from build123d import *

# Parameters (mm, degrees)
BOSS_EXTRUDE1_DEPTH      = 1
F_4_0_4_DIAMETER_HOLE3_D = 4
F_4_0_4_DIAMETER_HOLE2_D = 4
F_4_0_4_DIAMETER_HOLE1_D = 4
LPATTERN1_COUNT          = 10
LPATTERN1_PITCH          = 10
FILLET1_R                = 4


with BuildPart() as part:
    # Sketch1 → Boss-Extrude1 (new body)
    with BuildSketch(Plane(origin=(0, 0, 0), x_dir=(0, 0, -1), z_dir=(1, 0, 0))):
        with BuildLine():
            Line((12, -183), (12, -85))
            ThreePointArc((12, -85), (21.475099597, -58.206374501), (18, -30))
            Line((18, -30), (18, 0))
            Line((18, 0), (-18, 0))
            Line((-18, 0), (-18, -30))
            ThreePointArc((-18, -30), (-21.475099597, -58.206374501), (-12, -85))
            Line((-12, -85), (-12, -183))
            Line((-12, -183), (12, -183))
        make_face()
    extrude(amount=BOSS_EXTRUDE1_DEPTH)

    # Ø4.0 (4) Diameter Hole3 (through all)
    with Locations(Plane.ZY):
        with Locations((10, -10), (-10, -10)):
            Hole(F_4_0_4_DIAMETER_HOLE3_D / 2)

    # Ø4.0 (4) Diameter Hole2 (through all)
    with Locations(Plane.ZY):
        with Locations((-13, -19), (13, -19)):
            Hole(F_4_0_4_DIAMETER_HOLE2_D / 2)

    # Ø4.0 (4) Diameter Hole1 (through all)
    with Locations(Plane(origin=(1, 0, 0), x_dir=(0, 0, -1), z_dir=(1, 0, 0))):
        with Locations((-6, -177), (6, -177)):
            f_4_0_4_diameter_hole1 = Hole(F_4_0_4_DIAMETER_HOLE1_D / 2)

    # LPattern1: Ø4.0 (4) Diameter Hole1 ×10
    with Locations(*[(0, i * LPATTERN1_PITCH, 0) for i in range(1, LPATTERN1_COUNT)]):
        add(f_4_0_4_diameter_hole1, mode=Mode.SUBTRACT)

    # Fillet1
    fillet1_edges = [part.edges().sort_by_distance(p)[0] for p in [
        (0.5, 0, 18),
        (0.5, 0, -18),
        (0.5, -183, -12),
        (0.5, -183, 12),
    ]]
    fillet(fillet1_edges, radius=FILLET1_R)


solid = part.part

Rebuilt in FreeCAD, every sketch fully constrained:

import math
import FreeCAD as App
import Part
import Sketcher
from FreeCAD import Vector
Q = App.Units.Quantity


def edges_at(feature, points):
    """Names of the edges that pass closest to the given points."""
    edges = feature.Shape.Edges
    near = lambda p: min(range(len(edges)), key=lambda i: edges[i].distToShape(Part.Vertex(*p))[0])
    return sorted({f"Edge{near(p) + 1}" for p in points})

doc = App.newDocument("Part")
body = doc.addObject("PartDesign::Body", "Body")

# Sketch on YZ plane
sketch1 = body.newObject("Sketcher::SketchObject", "Sketch")
sketch1.AttachmentSupport = (doc.getObject("YZ_Plane"), [""])
sketch1.MapMode = "FlatFace"
sketch1.addGeometry(Part.LineSegment(Vector(-183, -12, 0), Vector(-85, -12, 0)), False)
sketch1.addGeometry(Part.ArcOfCircle(Part.Circle(Vector(-51.482629, 40.159235, 0), Vector(0, 0, 1), 62), math.radians(-122.724681), math.radians(-69.726977)), False)
sketch1.addGeometry(Part.LineSegment(Vector(-30, -18, 0), Vector(0, -18, 0)), False)
sketch1.addGeometry(Part.LineSegment(Vector(0, -18, 0), Vector(0, 18, 0)), False)
sketch1.addGeometry(Part.LineSegment(Vector(0, 18, 0), Vector(-30, 18, 0)), False)
sketch1.addGeometry(Part.ArcOfCircle(Part.Circle(Vector(-51.482629, -40.159235, 0), Vector(0, 0, 1), 62), math.radians(69.726977), math.radians(122.724681)), False)
sketch1.addGeometry(Part.LineSegment(Vector(-85, 12, 0), Vector(-183, 12, 0)), False)
sketch1.addGeometry(Part.LineSegment(Vector(-183, 12, 0), Vector(-183, -12, 0)), False)
sketch1.addConstraint(Sketcher.Constraint("Coincident", 0, 2, 1, 1))
sketch1.addConstraint(Sketcher.Constraint("Coincident", 1, 2, 2, 1))
sketch1.addConstraint(Sketcher.Constraint("Coincident", 2, 2, 3, 1))
sketch1.addConstraint(Sketcher.Constraint("Coincident", 3, 2, 4, 1))
sketch1.addConstraint(Sketcher.Constraint("Coincident", 4, 2, 5, 1))
sketch1.addConstraint(Sketcher.Constraint("Coincident", 5, 2, 6, 1))
sketch1.addConstraint(Sketcher.Constraint("Coincident", 6, 2, 7, 1))
sketch1.addConstraint(Sketcher.Constraint("Coincident", 7, 2, 0, 1))
sketch1.addConstraint(Sketcher.Constraint("Horizontal", 0))
sketch1.addConstraint(Sketcher.Constraint("Horizontal", 2))
sketch1.addConstraint(Sketcher.Constraint("Vertical", 3))
sketch1.addConstraint(Sketcher.Constraint("Horizontal", 4))
sketch1.addConstraint(Sketcher.Constraint("Horizontal", 6))
sketch1.addConstraint(Sketcher.Constraint("Vertical", 7))
sketch1.addConstraint(Sketcher.Constraint("Equal", 1, 5))
sketch1.addConstraint(Sketcher.Constraint("Symmetric", 2, 2, 3, 2, -1, 1))
sketch1.addConstraint(Sketcher.Constraint("Symmetric", 1, 3, 5, 3, -1))
sketch1.addConstraint(Sketcher.Constraint("Vertical", 0, 2, 5, 2))
sketch1.addConstraint(Sketcher.Constraint("Radius", 1, Q("62 mm")))
sketch1.addConstraint(Sketcher.Constraint("DistanceX", 0, 1, 0, 2, Q("98 mm")))
sketch1.addConstraint(Sketcher.Constraint("DistanceX", 2, 1, 2, 2, Q("30 mm")))
sketch1.addConstraint(Sketcher.Constraint("DistanceY", 3, 1, 3, 2, Q("36 mm")))
sketch1.addConstraint(Sketcher.Constraint("DistanceY", 7, 2, 7, 1, Q("24 mm")))
sketch1.addConstraint(Sketcher.Constraint("DistanceX", 0, 2, -1, 1, Q("85 mm")))
pad1 = body.newObject("PartDesign::Pad", "Pad")
pad1.Profile = sketch1
pad1.Length = 1

# Sketch on YZ plane
sketch2 = body.newObject("Sketcher::SketchObject", "Sketch001")
sketch2.AttachmentSupport = (doc.getObject("YZ_Plane"), [""])
sketch2.MapMode = "FlatFace"
sketch2.addGeometry(Part.Circle(Vector(-10, 10, 0), Vector(0, 0, 1), 2), False)
sketch2.addGeometry(Part.Circle(Vector(-10, -10, 0), Vector(0, 0, 1), 2), False)
sketch2.addConstraint(Sketcher.Constraint("Equal", 0, 1))
sketch2.addConstraint(Sketcher.Constraint("Symmetric", 0, 3, 1, 3, -1))
sketch2.addConstraint(Sketcher.Constraint("Diameter", 0, Q("4 mm")))
sketch2.addConstraint(Sketcher.Constraint("DistanceX", 0, 3, -1, 1, Q("10 mm")))
sketch2.addConstraint(Sketcher.Constraint("DistanceY", -1, 1, 0, 3, Q("10 mm")))
doc.recompute()
hole = body.newObject("PartDesign::Hole", "Hole")
hole.Profile = sketch2
hole.ThreadType = "None"
hole.Diameter = 4
hole.DepthType = "ThroughAll"
hole.Reversed = True

# Sketch on YZ plane
sketch3 = body.newObject("Sketcher::SketchObject", "Sketch002")
sketch3.AttachmentSupport = (doc.getObject("YZ_Plane"), [""])
sketch3.MapMode = "FlatFace"
sketch3.addGeometry(Part.Circle(Vector(-19, -13, 0), Vector(0, 0, 1), 2), False)
sketch3.addGeometry(Part.Circle(Vector(-19, 13, 0), Vector(0, 0, 1), 2), False)
sketch3.addConstraint(Sketcher.Constraint("Equal", 0, 1))
sketch3.addConstraint(Sketcher.Constraint("Symmetric", 0, 3, 1, 3, -1))
sketch3.addConstraint(Sketcher.Constraint("Diameter", 0, Q("4 mm")))
sketch3.addConstraint(Sketcher.Constraint("DistanceX", 0, 3, -1, 1, Q("19 mm")))
sketch3.addConstraint(Sketcher.Constraint("DistanceY", 0, 3, -1, 1, Q("13 mm")))
doc.recompute()
hole2 = body.newObject("PartDesign::Hole", "Hole001")
hole2.Profile = sketch3
hole2.ThreadType = "None"
hole2.Diameter = 4
hole2.DepthType = "ThroughAll"
hole2.Reversed = True

# Sketch on YZ plane
sketch4 = body.newObject("Sketcher::SketchObject", "Sketch003")
sketch4.AttachmentSupport = (doc.getObject("YZ_Plane"), [""])
sketch4.MapMode = "FlatFace"
sketch4.AttachmentOffset = App.Placement(Vector(0, 0, 1), App.Rotation())
sketch4.addGeometry(Part.Circle(Vector(-177, 6, 0), Vector(0, 0, 1), 2), False)
sketch4.addGeometry(Part.Circle(Vector(-177, -6, 0), Vector(0, 0, 1), 2), False)
sketch4.addConstraint(Sketcher.Constraint("Equal", 0, 1))
sketch4.addConstraint(Sketcher.Constraint("Symmetric", 0, 3, 1, 3, -1))
sketch4.addConstraint(Sketcher.Constraint("Diameter", 0, Q("4 mm")))
sketch4.addConstraint(Sketcher.Constraint("DistanceX", 0, 3, -1, 1, Q("177 mm")))
sketch4.addConstraint(Sketcher.Constraint("DistanceY", -1, 1, 0, 3, Q("6 mm")))
doc.recompute()
hole3 = body.newObject("PartDesign::Hole", "Hole002")
hole3.Profile = sketch4
hole3.ThreadType = "None"
hole3.Diameter = 4
hole3.DepthType = "ThroughAll"
doc.recompute()

linearpattern = body.newObject("PartDesign::LinearPattern", "LinearPattern")
linearpattern.Originals = [hole3]
linearpattern.Direction = (doc.getObject("Y_Axis"), [""])
linearpattern.Mode = "offset"
linearpattern.Offset = 10
linearpattern.Occurrences = 10
body.Tip = linearpattern
doc.recompute()

fillet = body.newObject("PartDesign::Fillet", "Fillet")
fillet.Base = (linearpattern, edges_at(linearpattern, [
    (0.5, 0, 18),
    (0.5, 0, -18),
    (0.5, -183, -12),
    (0.5, -183, 12),
]))
fillet.Radius = 4

doc.recompute()
